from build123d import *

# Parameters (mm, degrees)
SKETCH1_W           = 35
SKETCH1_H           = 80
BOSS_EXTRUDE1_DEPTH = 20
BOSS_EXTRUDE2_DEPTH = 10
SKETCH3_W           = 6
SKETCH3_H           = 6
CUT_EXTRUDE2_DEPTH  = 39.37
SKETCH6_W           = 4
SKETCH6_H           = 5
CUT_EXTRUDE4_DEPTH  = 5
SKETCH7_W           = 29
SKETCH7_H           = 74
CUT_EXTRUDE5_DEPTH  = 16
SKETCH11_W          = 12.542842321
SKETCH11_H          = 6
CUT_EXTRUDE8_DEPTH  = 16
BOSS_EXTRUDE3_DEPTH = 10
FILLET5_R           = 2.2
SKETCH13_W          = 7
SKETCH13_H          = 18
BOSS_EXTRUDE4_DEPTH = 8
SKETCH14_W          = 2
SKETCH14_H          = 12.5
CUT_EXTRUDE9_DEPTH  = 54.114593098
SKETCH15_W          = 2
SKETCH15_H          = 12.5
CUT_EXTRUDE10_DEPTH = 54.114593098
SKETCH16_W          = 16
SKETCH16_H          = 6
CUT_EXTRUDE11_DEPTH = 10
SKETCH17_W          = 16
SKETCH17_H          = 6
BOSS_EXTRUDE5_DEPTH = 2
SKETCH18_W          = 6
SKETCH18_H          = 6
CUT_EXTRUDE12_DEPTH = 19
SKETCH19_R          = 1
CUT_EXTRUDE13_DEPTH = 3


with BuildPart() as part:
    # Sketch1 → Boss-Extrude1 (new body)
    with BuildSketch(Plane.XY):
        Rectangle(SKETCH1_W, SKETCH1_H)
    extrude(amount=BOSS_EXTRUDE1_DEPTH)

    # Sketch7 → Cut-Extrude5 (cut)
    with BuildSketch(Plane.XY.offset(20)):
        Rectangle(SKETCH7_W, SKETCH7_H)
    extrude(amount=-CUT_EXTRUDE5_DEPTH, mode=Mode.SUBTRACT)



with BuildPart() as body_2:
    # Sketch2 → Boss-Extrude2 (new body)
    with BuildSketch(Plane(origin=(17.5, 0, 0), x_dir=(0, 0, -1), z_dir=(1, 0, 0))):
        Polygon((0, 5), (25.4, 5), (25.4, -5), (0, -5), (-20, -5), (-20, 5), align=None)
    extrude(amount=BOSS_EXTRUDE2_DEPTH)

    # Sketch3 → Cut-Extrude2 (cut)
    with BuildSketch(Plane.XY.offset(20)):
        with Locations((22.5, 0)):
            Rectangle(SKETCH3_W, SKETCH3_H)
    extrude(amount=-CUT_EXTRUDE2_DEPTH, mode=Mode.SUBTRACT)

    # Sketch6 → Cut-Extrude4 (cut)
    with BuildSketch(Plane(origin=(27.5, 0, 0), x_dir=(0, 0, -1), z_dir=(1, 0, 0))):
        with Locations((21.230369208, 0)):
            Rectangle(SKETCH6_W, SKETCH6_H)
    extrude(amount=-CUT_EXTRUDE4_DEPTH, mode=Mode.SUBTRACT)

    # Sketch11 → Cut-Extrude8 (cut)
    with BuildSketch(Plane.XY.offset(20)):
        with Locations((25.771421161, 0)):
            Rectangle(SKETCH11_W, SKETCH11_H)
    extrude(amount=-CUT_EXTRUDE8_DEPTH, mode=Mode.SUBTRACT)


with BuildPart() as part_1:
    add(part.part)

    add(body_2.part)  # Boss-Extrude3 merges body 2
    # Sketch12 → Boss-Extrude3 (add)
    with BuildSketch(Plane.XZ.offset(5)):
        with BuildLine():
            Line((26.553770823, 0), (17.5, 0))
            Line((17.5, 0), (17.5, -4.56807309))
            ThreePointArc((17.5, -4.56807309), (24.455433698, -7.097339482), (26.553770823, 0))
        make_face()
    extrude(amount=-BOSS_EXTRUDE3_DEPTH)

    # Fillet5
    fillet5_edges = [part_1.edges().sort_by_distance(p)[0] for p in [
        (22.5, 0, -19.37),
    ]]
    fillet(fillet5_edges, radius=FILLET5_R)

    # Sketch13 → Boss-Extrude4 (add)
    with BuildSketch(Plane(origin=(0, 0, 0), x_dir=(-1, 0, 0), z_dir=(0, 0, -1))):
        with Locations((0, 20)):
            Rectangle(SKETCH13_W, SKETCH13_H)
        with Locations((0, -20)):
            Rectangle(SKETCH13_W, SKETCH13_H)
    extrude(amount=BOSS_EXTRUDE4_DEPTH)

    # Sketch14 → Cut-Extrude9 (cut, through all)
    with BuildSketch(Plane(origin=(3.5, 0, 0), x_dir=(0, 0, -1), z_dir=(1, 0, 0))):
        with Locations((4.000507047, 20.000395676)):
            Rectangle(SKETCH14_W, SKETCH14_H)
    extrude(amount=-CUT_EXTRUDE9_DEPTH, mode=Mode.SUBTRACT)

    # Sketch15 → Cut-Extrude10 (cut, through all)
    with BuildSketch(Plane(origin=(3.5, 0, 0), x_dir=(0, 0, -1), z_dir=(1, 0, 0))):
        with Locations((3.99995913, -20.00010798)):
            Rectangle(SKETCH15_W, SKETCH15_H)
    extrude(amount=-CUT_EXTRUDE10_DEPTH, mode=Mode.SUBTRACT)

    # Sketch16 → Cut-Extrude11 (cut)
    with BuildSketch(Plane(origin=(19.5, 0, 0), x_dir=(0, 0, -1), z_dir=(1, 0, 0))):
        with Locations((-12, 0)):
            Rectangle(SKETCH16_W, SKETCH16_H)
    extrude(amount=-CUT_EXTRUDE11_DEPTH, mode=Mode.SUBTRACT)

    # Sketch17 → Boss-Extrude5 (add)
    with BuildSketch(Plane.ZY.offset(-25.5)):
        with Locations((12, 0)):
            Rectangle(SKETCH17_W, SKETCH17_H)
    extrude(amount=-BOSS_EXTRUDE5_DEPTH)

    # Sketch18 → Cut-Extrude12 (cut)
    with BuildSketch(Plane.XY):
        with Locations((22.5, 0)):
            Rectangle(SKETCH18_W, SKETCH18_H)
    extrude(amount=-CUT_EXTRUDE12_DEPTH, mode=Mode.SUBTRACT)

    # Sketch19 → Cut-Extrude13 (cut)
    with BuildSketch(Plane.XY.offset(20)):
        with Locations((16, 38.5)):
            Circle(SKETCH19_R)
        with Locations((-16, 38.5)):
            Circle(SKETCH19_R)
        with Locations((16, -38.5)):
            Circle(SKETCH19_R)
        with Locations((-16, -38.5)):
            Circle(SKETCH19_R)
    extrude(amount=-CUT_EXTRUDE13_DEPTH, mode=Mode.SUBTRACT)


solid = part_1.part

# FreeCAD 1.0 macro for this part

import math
import FreeCAD as App
import Part
import Sketcher
Q = App.Units.Quantity


def edges_at(feature, points):
    """Names of the edges that pass closest to the given points."""
    edges = feature.Shape.Edges
    near = lambda p: min(range(len(edges)), key=lambda i: edges[i].distToShape(Part.Vertex(*p))[0])
    return sorted({f"Edge{near(p) + 1}" for p in points})

doc = App.newDocument("Part")
params = doc.addObject("Spreadsheet::Sheet", "Params")
for row, (alias, value) in enumerate([
    ("sketch1_width", "35 mm"),
    ("sketch1_height", "80 mm"),
    ("pad1_length", "20 mm"),
    ("sketch2_width", "29 mm"),
    ("sketch2_height", "74 mm"),
    ("pocket1_length", "16 mm"),
    ("sketch3_width", "10 mm"),
    ("sketch3_height", "45.4 mm"),
    ("pad2_length", "10 mm"),
    ("sketch4_width", "6 mm"),
    ("pocket2_length", "39.37 mm"),
    ("sketch5_width", "5 mm"),
    ("sketch5_height", "4 mm"),
    ("pocket3_length", "5 mm"),
    ("sketch6_height", "6 mm"),
    ("pocket4_length", "16 mm"),
    ("sketch7_radius", "5.08 mm"),
    ("pad3_length", "10 mm"),
    ("fillet_radius", "2.2 mm"),
    ("sketch8_width", "7 mm"),
    ("sketch8_height", "18 mm"),
    ("pad4_length", "8 mm"),
    ("sketch9_height", "2 mm"),
    ("sketch9_width", "12.5 mm"),
    ("sketch10_height", "2 mm"),
    ("sketch10_width", "12.5 mm"),
    ("sketch11_width", "6 mm"),
    ("sketch11_height", "16 mm"),
    ("pocket7_length", "10 mm"),
    ("sketch12_width", "6 mm"),
    ("sketch12_height", "16 mm"),
    ("pad5_length", "2 mm"),
    ("sketch13_width", "6 mm"),
    ("pocket8_length", "19 mm"),
    ("sketch14_diameter", "2 mm"),
    ("pocket9_length", "3 mm"),
], start=1):
    params.set(f"A{row}", alias)
    params.set(f"B{row}", "=" + value)
    params.setAlias(f"B{row}", alias)

body = doc.addObject("PartDesign::Body", "Body")

# Sketch on XY plane
sketch1 = body.newObject("Sketcher::SketchObject", "Sketch")
sketch1.AttachmentSupport = (doc.getObject("XY_Plane"), [""])
sketch1.MapMode = "FlatFace"
sketch1.addGeometry([
    Part.LineSegment(App.Vector(-18, 40, 0), App.Vector(-18, -40, 0)),
    Part.LineSegment(App.Vector(-18, -40, 0), App.Vector(18, -40, 0)),
    Part.LineSegment(App.Vector(18, -40, 0), App.Vector(18, 40, 0)),
    Part.LineSegment(App.Vector(18, 40, 0), App.Vector(-18, 40, 0)),
], False)
sketch1.addConstraint([
    Sketcher.Constraint("Coincident", 0, 2, 1, 1),
    Sketcher.Constraint("Coincident", 1, 2, 2, 1),
    Sketcher.Constraint("Coincident", 2, 2, 3, 1),
    Sketcher.Constraint("Coincident", 3, 2, 0, 1),
    Sketcher.Constraint("Vertical", 0),
    Sketcher.Constraint("Horizontal", 1),
    Sketcher.Constraint("Vertical", 2),
    Sketcher.Constraint("Horizontal", 3),
    Sketcher.Constraint("Symmetric", 0, 2, 2, 2, -1, 1),
    Sketcher.Constraint("DistanceX", 1, 1, 1, 2, Q("35 mm")),
    Sketcher.Constraint("DistanceY", 0, 2, 0, 1, Q("80 mm")),
])
sketch1.setExpression("Constraints[9]", "Params.sketch1_width")
sketch1.setExpression("Constraints[10]", "Params.sketch1_height")
pad1 = body.newObject("PartDesign::Pad", "Pad")
pad1.Profile = sketch1
pad1.setExpression("Length", "Params.pad1_length")

# Sketch on XY plane
sketch2 = body.newObject("Sketcher::SketchObject", "Sketch001")
sketch2.AttachmentSupport = (doc.getObject("XY_Plane"), [""])
sketch2.MapMode = "FlatFace"
sketch2.AttachmentOffset = App.Placement(App.Vector(0, 0, 20), App.Rotation())
sketch2.addGeometry([
    Part.LineSegment(App.Vector(-14, 37, 0), App.Vector(-14, -37, 0)),
    Part.LineSegment(App.Vector(-14, -37, 0), App.Vector(14, -37, 0)),
    Part.LineSegment(App.Vector(14, -37, 0), App.Vector(14, 37, 0)),
    Part.LineSegment(App.Vector(14, 37, 0), App.Vector(-14, 37, 0)),
], False)
sketch2.addConstraint([
    Sketcher.Constraint("Coincident", 0, 2, 1, 1),
    Sketcher.Constraint("Coincident", 1, 2, 2, 1),
    Sketcher.Constraint("Coincident", 2, 2, 3, 1),
    Sketcher.Constraint("Coincident", 3, 2, 0, 1),
    Sketcher.Constraint("Vertical", 0),
    Sketcher.Constraint("Horizontal", 1),
    Sketcher.Constraint("Vertical", 2),
    Sketcher.Constraint("Horizontal", 3),
    Sketcher.Constraint("Symmetric", 0, 2, 2, 2, -1, 1),
    Sketcher.Constraint("DistanceX", 1, 1, 1, 2, Q("29 mm")),
    Sketcher.Constraint("DistanceY", 0, 2, 0, 1, Q("74 mm")),
])
sketch2.setExpression("Constraints[9]", "Params.sketch2_width")
sketch2.setExpression("Constraints[10]", "Params.sketch2_height")
pocket1 = body.newObject("PartDesign::Pocket", "Pocket")
pocket1.Profile = sketch2
pocket1.setExpression("Length", "Params.pocket1_length")
body2 = doc.addObject("PartDesign::Body", "Body001")

# Sketch on YZ plane
sketch3 = body2.newObject("Sketcher::SketchObject", "Sketch002")
sketch3.AttachmentSupport = (doc.getObject("YZ_Plane001"), [""])
sketch3.MapMode = "FlatFace"
sketch3.AttachmentOffset = App.Placement(App.Vector(0, 0, 17.5), App.Rotation())
sketch3.addGeometry([
    Part.LineSegment(App.Vector(5, -25, 0), App.Vector(5, 20, 0)),
    Part.LineSegment(App.Vector(5, 20, 0), App.Vector(-5, 20, 0)),
    Part.LineSegment(App.Vector(-5, 20, 0), App.Vector(-5, -25, 0)),
    Part.LineSegment(App.Vector(-5, -25, 0), App.Vector(5, -25, 0)),
], False)
sketch3.addConstraint([
    Sketcher.Constraint("Coincident", 0, 2, 1, 1),
    Sketcher.Constraint("Coincident", 1, 2, 2, 1),
    Sketcher.Constraint("Coincident", 2, 2, 3, 1),
    Sketcher.Constraint("Coincident", 3, 2, 0, 1),
    Sketcher.Constraint("Vertical", 0),
    Sketcher.Constraint("Horizontal", 1),
    Sketcher.Constraint("Vertical", 2),
    Sketcher.Constraint("Horizontal", 3),
    Sketcher.Constraint("DistanceX", 1, 2, 1, 1, Q("10 mm")),
    Sketcher.Constraint("DistanceY", 0, 1, 0, 2, Q("45.4 mm")),
    Sketcher.Constraint("DistanceX", -1, 1, 0, 2, Q("5 mm")),
    Sketcher.Constraint("DistanceY", -1, 1, 0, 2, Q("20 mm")),
])
sketch3.setExpression("Constraints[8]", "Params.sketch3_width")
sketch3.setExpression("Constraints[9]", "Params.sketch3_height")
pad2 = body2.newObject("PartDesign::Pad", "Pad001")
pad2.Profile = sketch3
pad2.setExpression("Length", "Params.pad2_length")

# Sketch on XY plane
sketch4 = body2.newObject("Sketcher::SketchObject", "Sketch003")
sketch4.AttachmentSupport = (doc.getObject("XY_Plane001"), [""])
sketch4.MapMode = "FlatFace"
sketch4.AttachmentOffset = App.Placement(App.Vector(0, 0, 20), App.Rotation())
sketch4.addGeometry([
    Part.LineSegment(App.Vector(20, 3, 0), App.Vector(20, -3, 0)),
    Part.LineSegment(App.Vector(20, -3, 0), App.Vector(26, -3, 0)),
    Part.LineSegment(App.Vector(26, -3, 0), App.Vector(26, 3, 0)),
    Part.LineSegment(App.Vector(26, 3, 0), App.Vector(20, 3, 0)),
], False)
sketch4.addConstraint([
    Sketcher.Constraint("Coincident", 0, 2, 1, 1),
    Sketcher.Constraint("Coincident", 1, 2, 2, 1),
    Sketcher.Constraint("Coincident", 2, 2, 3, 1),
    Sketcher.Constraint("Coincident", 3, 2, 0, 1),
    Sketcher.Constraint("Vertical", 0),
    Sketcher.Constraint("Horizontal", 1),
    Sketcher.Constraint("Vertical", 2),
    Sketcher.Constraint("Horizontal", 3),
    Sketcher.Constraint("Equal", 3, 0),
    Sketcher.Constraint("DistanceX", 1, 1, 1, 2, Q("6 mm")),
    Sketcher.Constraint("DistanceY", 0, 2, -1, 1, Q("3 mm")),
    Sketcher.Constraint("DistanceX", -1, 1, 0, 2, Q("19.5 mm")),
])
sketch4.setExpression("Constraints[9]", "Params.sketch4_width")
pocket2 = body2.newObject("PartDesign::Pocket", "Pocket001")
pocket2.Profile = sketch4
pocket2.setExpression("Length", "Params.pocket2_length")

# Sketch on YZ plane
sketch5 = body2.newObject("Sketcher::SketchObject", "Sketch004")
sketch5.AttachmentSupport = (doc.getObject("YZ_Plane001"), [""])
sketch5.MapMode = "FlatFace"
sketch5.AttachmentOffset = App.Placement(App.Vector(0, 0, 27.5), App.Rotation())
sketch5.addGeometry([
    Part.LineSegment(App.Vector(2.5, -19.2, 0), App.Vector(-2.5, -19.2, 0)),
    Part.LineSegment(App.Vector(-2.5, -19.2, 0), App.Vector(-2.5, -23.2, 0)),
    Part.LineSegment(App.Vector(-2.5, -23.2, 0), App.Vector(2.5, -23.2, 0)),
    Part.LineSegment(App.Vector(2.5, -23.2, 0), App.Vector(2.5, -19.2, 0)),
], False)
sketch5.addConstraint([
    Sketcher.Constraint("Coincident", 0, 2, 1, 1),
    Sketcher.Constraint("Coincident", 1, 2, 2, 1),
    Sketcher.Constraint("Coincident", 2, 2, 3, 1),
    Sketcher.Constraint("Coincident", 3, 2, 0, 1),
    Sketcher.Constraint("Horizontal", 0),
    Sketcher.Constraint("Vertical", 1),
    Sketcher.Constraint("Horizontal", 2),
    Sketcher.Constraint("Vertical", 3),
    Sketcher.Constraint("DistanceX", 0, 2, 0, 1, Q("5 mm")),
    Sketcher.Constraint("DistanceY", 1, 2, 1, 1, Q("4 mm")),
    Sketcher.Constraint("DistanceX", 0, 2, -1, 1, Q("2.5 mm")),
    Sketcher.Constraint("DistanceY", 0, 2, -1, 1, Q("19.230369 mm")),
])
sketch5.setExpression("Constraints[8]", "Params.sketch5_width")
sketch5.setExpression("Constraints[9]", "Params.sketch5_height")
pocket3 = body2.newObject("PartDesign::Pocket", "Pocket002")
pocket3.Profile = sketch5
pocket3.setExpression("Length", "Params.pocket3_length")

# Sketch on XY plane
sketch6 = body2.newObject("Sketcher::SketchObject", "Sketch005")
sketch6.AttachmentSupport = (doc.getObject("XY_Plane001"), [""])
sketch6.MapMode = "FlatFace"
sketch6.AttachmentOffset = App.Placement(App.Vector(0, 0, 20), App.Rotation())
sketch6.addGeometry([
    Part.LineSegment(App.Vector(20, 3, 0), App.Vector(20, -3, 0)),
    Part.LineSegment(App.Vector(20, -3, 0), App.Vector(32, -3, 0)),
    Part.LineSegment(App.Vector(32, -3, 0), App.Vector(32, 3, 0)),
    Part.LineSegment(App.Vector(32, 3, 0), App.Vector(20, 3, 0)),
], False)
sketch6.addConstraint([
    Sketcher.Constraint("Coincident", 0, 2, 1, 1),
    Sketcher.Constraint("Coincident", 1, 2, 2, 1),
    Sketcher.Constraint("Coincident", 2, 2, 3, 1),
    Sketcher.Constraint("Coincident", 3, 2, 0, 1),
    Sketcher.Constraint("Vertical", 0),
    Sketcher.Constraint("Horizontal", 1),
    Sketcher.Constraint("Vertical", 2),
    Sketcher.Constraint("Horizontal", 3),
    Sketcher.Constraint("DistanceY", 0, 2, 0, 1, Q("6 mm")),
    Sketcher.Constraint("DistanceY", 0, 2, -1, 1, Q("3 mm")),
    Sketcher.Constraint("DistanceX", -1, 1, 0, 2, Q("19.5 mm")),
    Sketcher.Constraint("DistanceX", 1, 1, 1, 2, Q("12.542842 mm")),
])
sketch6.setExpression("Constraints[8]", "Params.sketch6_height")
pocket4 = body2.newObject("PartDesign::Pocket", "Pocket003")
pocket4.Profile = sketch6
pocket4.setExpression("Length", "Params.pocket4_length")
doc.recompute()

boolean = body.newObject("PartDesign::Boolean", "Boolean")
boolean.Type = "Fuse"
boolean.addObjects([body2])

# Sketch on XZ plane
sketch7 = body.newObject("Sketcher::SketchObject", "Sketch006")
sketch7.AttachmentSupport = (doc.getObject("XZ_Plane"), [""])
sketch7.MapMode = "FlatFace"
sketch7.AttachmentOffset = App.Placement(App.Vector(0, 0, 5), App.Rotation())
sketch7.addGeometry([
    Part.LineSegment(App.Vector(26.6, 0, 0), App.Vector(17.5, 0, 0)),
    Part.LineSegment(App.Vector(17.5, 0, 0), App.Vector(17.5, -4.6, 0)),
    Part.ArcOfCircle(Part.Circle(App.Vector(22.2, -2.6, 0), App.Vector(0, 0, 1), 5.1), math.radians(-157), math.radians(30)),
], False)
sketch7.addConstraint([
    Sketcher.Constraint("Coincident", 0, 2, 1, 1),
    Sketcher.Constraint("Coincident", 1, 2, 2, 1),
    Sketcher.Constraint("Coincident", 2, 2, 0, 1),
    Sketcher.Constraint("Horizontal", 0),
    Sketcher.Constraint("Vertical", 1),
    Sketcher.Constraint("PointOnObject", 0, 2, -1),
    Sketcher.Constraint("Radius", 2, Q("5.08 mm")),
    Sketcher.Constraint("DistanceX", -1, 1, 0, 2, Q("17.5 mm")),
    Sketcher.Constraint("DistanceX", 0, 2, 0, 1, Q("9.053771 mm")),
    Sketcher.Constraint("DistanceY", 1, 2, 1, 1, Q("4.568073 mm")),
])
sketch7.setExpression("Constraints[6]", "Params.sketch7_radius")
pad3 = body.newObject("PartDesign::Pad", "Pad002")
pad3.Profile = sketch7
pad3.setExpression("Length", "Params.pad3_length")
pad3.Reversed = True
doc.recompute()

fillet = body.newObject("PartDesign::Fillet", "Fillet")
fillet.Base = (pad3, edges_at(pad3, [(22.5, 0, -19.37)]))
fillet.setExpression("Radius", "Params.fillet_radius")

# Sketch on XY plane
sketch8 = body.newObject("Sketcher::SketchObject", "Sketch007")
sketch8.AttachmentSupport = (doc.getObject("XY_Plane"), [""])
sketch8.MapMode = "FlatFace"
sketch8.addGeometry([
    Part.LineSegment(App.Vector(4, 29, 0), App.Vector(4, 11, 0)),  # 0
    Part.LineSegment(App.Vector(4, 11, 0), App.Vector(-4, 11, 0)),  # 1
    Part.LineSegment(App.Vector(-4, 11, 0), App.Vector(-4, 29, 0)),  # 2
    Part.LineSegment(App.Vector(-4, 29, 0), App.Vector(4, 29, 0)),  # 3
    Part.LineSegment(App.Vector(4, -11, 0), App.Vector(4, -29, 0)),  # 4
    Part.LineSegment(App.Vector(4, -29, 0), App.Vector(-4, -29, 0)),  # 5
    Part.LineSegment(App.Vector(-4, -29, 0), App.Vector(-4, -11, 0)),  # 6
    Part.LineSegment(App.Vector(-4, -11, 0), App.Vector(4, -11, 0)),  # 7
], False)
sketch8.addConstraint([
    Sketcher.Constraint("Coincident", 0, 2, 1, 1),
    Sketcher.Constraint("Coincident", 1, 2, 2, 1),
    Sketcher.Constraint("Coincident", 2, 2, 3, 1),
    Sketcher.Constraint("Coincident", 3, 2, 0, 1),
    Sketcher.Constraint("Coincident", 4, 2, 5, 1),
    Sketcher.Constraint("Coincident", 5, 2, 6, 1),
    Sketcher.Constraint("Coincident", 6, 2, 7, 1),
    Sketcher.Constraint("Coincident", 7, 2, 4, 1),
    Sketcher.Constraint("Vertical", 0),
    Sketcher.Constraint("Horizontal", 1),
    Sketcher.Constraint("Vertical", 2),
    Sketcher.Constraint("Horizontal", 3),
    Sketcher.Constraint("Vertical", 4),
    Sketcher.Constraint("Horizontal", 5),
    Sketcher.Constraint("Vertical", 6),
    Sketcher.Constraint("Horizontal", 7),
    Sketcher.Constraint("Symmetric", 2, 2, 4, 2, -1, 1),
    Sketcher.Constraint("Symmetric", 0, 2, 6, 2, -1, 1),
    Sketcher.Constraint("Vertical", 3, 2, 4, 2),
    Sketcher.Constraint("DistanceX", 1, 2, 1, 1, Q("7 mm")),
    Sketcher.Constraint("DistanceY", 0, 2, 0, 1, Q("18 mm")),
    Sketcher.Constraint("DistanceY", -1, 1, 0, 2, Q("11 mm")),
])
sketch8.setExpression("Constraints[19]", "Params.sketch8_width")
sketch8.setExpression("Constraints[20]", "Params.sketch8_height")
pad4 = body.newObject("PartDesign::Pad", "Pad003")
pad4.Profile = sketch8
pad4.setExpression("Length", "Params.pad4_length")
pad4.Reversed = True

# Sketch on YZ plane
sketch9 = body.newObject("Sketcher::SketchObject", "Sketch008")
sketch9.AttachmentSupport = (doc.getObject("YZ_Plane"), [""])
sketch9.MapMode = "FlatFace"
sketch9.AttachmentOffset = App.Placement(App.Vector(0, 0, 3.5), App.Rotation())
sketch9.addGeometry([
    Part.LineSegment(App.Vector(26.3, -3, 0), App.Vector(13.8, -3, 0)),
    Part.LineSegment(App.Vector(13.8, -3, 0), App.Vector(13.8, -5, 0)),
    Part.LineSegment(App.Vector(13.8, -5, 0), App.Vector(26.3, -5, 0)),
    Part.LineSegment(App.Vector(26.3, -5, 0), App.Vector(26.3, -3, 0)),
], False)
sketch9.addConstraint([
    Sketcher.Constraint("Coincident", 0, 2, 1, 1),
    Sketcher.Constraint("Coincident", 1, 2, 2, 1),
    Sketcher.Constraint("Coincident", 2, 2, 3, 1),
    Sketcher.Constraint("Coincident", 3, 2, 0, 1),
    Sketcher.Constraint("Horizontal", 0),
    Sketcher.Constraint("Vertical", 1),
    Sketcher.Constraint("Horizontal", 2),
    Sketcher.Constraint("Vertical", 3),
    Sketcher.Constraint("DistanceY", 1, 2, 1, 1, Q("2 mm")),
    Sketcher.Constraint("DistanceX", 0, 2, 0, 1, Q("12.5 mm")),
    Sketcher.Constraint("DistanceX", -1, 1, 0, 2, Q("13.750396 mm")),
    Sketcher.Constraint("DistanceY", 0, 2, -1, 1, Q("3.000507 mm")),
])
sketch9.setExpression("Constraints[8]", "Params.sketch9_height")
sketch9.setExpression("Constraints[9]", "Params.sketch9_width")
pocket5 = body.newObject("PartDesign::Pocket", "Pocket004")
pocket5.Profile = sketch9
pocket5.Type = "ThroughAll"

# Sketch on YZ plane
sketch10 = body.newObject("Sketcher::SketchObject", "Sketch009")
sketch10.AttachmentSupport = (doc.getObject("YZ_Plane"), [""])
sketch10.MapMode = "FlatFace"
sketch10.AttachmentOffset = App.Placement(App.Vector(0, 0, 3.5), App.Rotation())
sketch10.addGeometry([
    Part.LineSegment(App.Vector(-13.8, -3, 0), App.Vector(-26.3, -3, 0)),
    Part.LineSegment(App.Vector(-26.3, -3, 0), App.Vector(-26.3, -5, 0)),
    Part.LineSegment(App.Vector(-26.3, -5, 0), App.Vector(-13.8, -5, 0)),
    Part.LineSegment(App.Vector(-13.8, -5, 0), App.Vector(-13.8, -3, 0)),
], False)
sketch10.addConstraint([
    Sketcher.Constraint("Coincident", 0, 2, 1, 1),
    Sketcher.Constraint("Coincident", 1, 2, 2, 1),
    Sketcher.Constraint("Coincident", 2, 2, 3, 1),
    Sketcher.Constraint("Coincident", 3, 2, 0, 1),
    Sketcher.Constraint("Horizontal", 0),
    Sketcher.Constraint("Vertical", 1),
    Sketcher.Constraint("Horizontal", 2),
    Sketcher.Constraint("Vertical", 3),
    Sketcher.Constraint("DistanceY", 1, 2, 1, 1, Q("2 mm")),
    Sketcher.Constraint("DistanceX", 0, 2, 0, 1, Q("12.5 mm")),
    Sketcher.Constraint("DistanceY", 0, 2, -1, 1, Q("2.999959 mm")),
    Sketcher.Constraint("DistanceX", 0, 2, -1, 1, Q("26.250108 mm")),
])
sketch10.setExpression("Constraints[8]", "Params.sketch10_height")
sketch10.setExpression("Constraints[9]", "Params.sketch10_width")
pocket6 = body.newObject("PartDesign::Pocket", "Pocket005")
pocket6.Profile = sketch10
pocket6.Type = "ThroughAll"

# Sketch on YZ plane
sketch11 = body.newObject("Sketcher::SketchObject", "Sketch010")
sketch11.AttachmentSupport = (doc.getObject("YZ_Plane"), [""])
sketch11.MapMode = "FlatFace"
sketch11.AttachmentOffset = App.Placement(App.Vector(0, 0, 19.5), App.Rotation())
sketch11.addGeometry([
    Part.LineSegment(App.Vector(3, 20, 0), App.Vector(-3, 20, 0)),
    Part.LineSegment(App.Vector(-3, 20, 0), App.Vector(-3, 4, 0)),
    Part.LineSegment(App.Vector(-3, 4, 0), App.Vector(3, 4, 0)),
    Part.LineSegment(App.Vector(3, 4, 0), App.Vector(3, 20, 0)),
], False)
sketch11.addConstraint([
    Sketcher.Constraint("Coincident", 0, 2, 1, 1),
    Sketcher.Constraint("Coincident", 1, 2, 2, 1),
    Sketcher.Constraint("Coincident", 2, 2, 3, 1),
    Sketcher.Constraint("Coincident", 3, 2, 0, 1),
    Sketcher.Constraint("Horizontal", 0),
    Sketcher.Constraint("Vertical", 1),
    Sketcher.Constraint("Horizontal", 2),
    Sketcher.Constraint("Vertical", 3),
    Sketcher.Constraint("DistanceX", 0, 2, 0, 1, Q("6 mm")),
    Sketcher.Constraint("DistanceY", 1, 2, 1, 1, Q("16 mm")),
    Sketcher.Constraint("DistanceX", 0, 2, -1, 1, Q("3 mm")),
    Sketcher.Constraint("DistanceY", -1, 1, 0, 2, Q("20 mm")),
])
sketch11.setExpression("Constraints[8]", "Params.sketch11_width")
sketch11.setExpression("Constraints[9]", "Params.sketch11_height")
pocket7 = body.newObject("PartDesign::Pocket", "Pocket006")
pocket7.Profile = sketch11
pocket7.setExpression("Length", "Params.pocket7_length")

# Sketch on YZ plane
sketch12 = body.newObject("Sketcher::SketchObject", "Sketch011")
sketch12.AttachmentSupport = (doc.getObject("YZ_Plane"), [""])
sketch12.MapMode = "FlatFace"
sketch12.AttachmentOffset = App.Placement(App.Vector(0, 0, 25.5), App.Rotation())
sketch12.addGeometry([
    Part.LineSegment(App.Vector(3, 4, 0), App.Vector(-3, 4, 0)),
    Part.LineSegment(App.Vector(-3, 4, 0), App.Vector(-3, 20, 0)),
    Part.LineSegment(App.Vector(-3, 20, 0), App.Vector(3, 20, 0)),
    Part.LineSegment(App.Vector(3, 20, 0), App.Vector(3, 4, 0)),
], False)
sketch12.addConstraint([
    Sketcher.Constraint("Coincident", 0, 2, 1, 1),
    Sketcher.Constraint("Coincident", 1, 2, 2, 1),
    Sketcher.Constraint("Coincident", 2, 2, 3, 1),
    Sketcher.Constraint("Coincident", 3, 2, 0, 1),
    Sketcher.Constraint("Horizontal", 0),
    Sketcher.Constraint("Vertical", 1),
    Sketcher.Constraint("Horizontal", 2),
    Sketcher.Constraint("Vertical", 3),
    Sketcher.Constraint("DistanceX", 0, 2, 0, 1, Q("6 mm")),
    Sketcher.Constraint("DistanceY", 1, 1, 1, 2, Q("16 mm")),
    Sketcher.Constraint("DistanceX", 0, 2, -1, 1, Q("3 mm")),
    Sketcher.Constraint("DistanceY", -1, 1, 0, 2, Q("4 mm")),
])
sketch12.setExpression("Constraints[8]", "Params.sketch12_width")
sketch12.setExpression("Constraints[9]", "Params.sketch12_height")
pad5 = body.newObject("PartDesign::Pad", "Pad004")
pad5.Profile = sketch12
pad5.setExpression("Length", "Params.pad5_length")

# Sketch on XY plane
sketch13 = body.newObject("Sketcher::SketchObject", "Sketch012")
sketch13.AttachmentSupport = (doc.getObject("XY_Plane"), [""])
sketch13.MapMode = "FlatFace"
sketch13.addGeometry([
    Part.LineSegment(App.Vector(20, 3, 0), App.Vector(20, -3, 0)),
    Part.LineSegment(App.Vector(20, -3, 0), App.Vector(26, -3, 0)),
    Part.LineSegment(App.Vector(26, -3, 0), App.Vector(26, 3, 0)),
    Part.LineSegment(App.Vector(26, 3, 0), App.Vector(20, 3, 0)),
], False)
sketch13.addConstraint([
    Sketcher.Constraint("Coincident", 0, 2, 1, 1),
    Sketcher.Constraint("Coincident", 1, 2, 2, 1),
    Sketcher.Constraint("Coincident", 2, 2, 3, 1),
    Sketcher.Constraint("Coincident", 3, 2, 0, 1),
    Sketcher.Constraint("Vertical", 0),
    Sketcher.Constraint("Horizontal", 1),
    Sketcher.Constraint("Vertical", 2),
    Sketcher.Constraint("Horizontal", 3),
    Sketcher.Constraint("Equal", 3, 0),
    Sketcher.Constraint("DistanceX", 1, 1, 1, 2, Q("6 mm")),
    Sketcher.Constraint("DistanceY", 0, 2, -1, 1, Q("3 mm")),
    Sketcher.Constraint("DistanceX", -1, 1, 0, 2, Q("19.5 mm")),
])
sketch13.setExpression("Constraints[9]", "Params.sketch13_width")
pocket8 = body.newObject("PartDesign::Pocket", "Pocket007")
pocket8.Profile = sketch13
pocket8.setExpression("Length", "Params.pocket8_length")

# Sketch on XY plane
sketch14 = body.newObject("Sketcher::SketchObject", "Sketch013")
sketch14.AttachmentSupport = (doc.getObject("XY_Plane"), [""])
sketch14.MapMode = "FlatFace"
sketch14.AttachmentOffset = App.Placement(App.Vector(0, 0, 20), App.Rotation())
sketch14.addGeometry([
    Part.Circle(App.Vector(16, 38.5, 0), App.Vector(0, 0, 1), 1),
    Part.Circle(App.Vector(-16, 38.5, 0), App.Vector(0, 0, 1), 1),
    Part.Circle(App.Vector(16, -38.5, 0), App.Vector(0, 0, 1), 1),
    Part.Circle(App.Vector(-16, -38.5, 0), App.Vector(0, 0, 1), 1),
], False)
sketch14.addConstraint([
    Sketcher.Constraint("Equal", 0, 1),
    Sketcher.Constraint("Equal", 1, 2),
    Sketcher.Constraint("Equal", 2, 3),
    Sketcher.Constraint("Symmetric", 1, 3, 2, 3, -1, 1),
    Sketcher.Constraint("Symmetric", 0, 3, 3, 3, -1, 1),
    Sketcher.Constraint("Symmetric", 0, 3, 1, 3, -2),
    Sketcher.Constraint("Diameter", 0, Q("2 mm")),
    Sketcher.Constraint("DistanceX", -1, 1, 0, 3, Q("16 mm")),
    Sketcher.Constraint("DistanceY", 2, 3, 0, 3, Q("77 mm")),
])
sketch14.setExpression("Constraints[6]", "Params.sketch14_diameter")
pocket9 = body.newObject("PartDesign::Pocket", "Pocket008")
pocket9.Profile = sketch14
pocket9.setExpression("Length", "Params.pocket9_length")

doc.recompute()
